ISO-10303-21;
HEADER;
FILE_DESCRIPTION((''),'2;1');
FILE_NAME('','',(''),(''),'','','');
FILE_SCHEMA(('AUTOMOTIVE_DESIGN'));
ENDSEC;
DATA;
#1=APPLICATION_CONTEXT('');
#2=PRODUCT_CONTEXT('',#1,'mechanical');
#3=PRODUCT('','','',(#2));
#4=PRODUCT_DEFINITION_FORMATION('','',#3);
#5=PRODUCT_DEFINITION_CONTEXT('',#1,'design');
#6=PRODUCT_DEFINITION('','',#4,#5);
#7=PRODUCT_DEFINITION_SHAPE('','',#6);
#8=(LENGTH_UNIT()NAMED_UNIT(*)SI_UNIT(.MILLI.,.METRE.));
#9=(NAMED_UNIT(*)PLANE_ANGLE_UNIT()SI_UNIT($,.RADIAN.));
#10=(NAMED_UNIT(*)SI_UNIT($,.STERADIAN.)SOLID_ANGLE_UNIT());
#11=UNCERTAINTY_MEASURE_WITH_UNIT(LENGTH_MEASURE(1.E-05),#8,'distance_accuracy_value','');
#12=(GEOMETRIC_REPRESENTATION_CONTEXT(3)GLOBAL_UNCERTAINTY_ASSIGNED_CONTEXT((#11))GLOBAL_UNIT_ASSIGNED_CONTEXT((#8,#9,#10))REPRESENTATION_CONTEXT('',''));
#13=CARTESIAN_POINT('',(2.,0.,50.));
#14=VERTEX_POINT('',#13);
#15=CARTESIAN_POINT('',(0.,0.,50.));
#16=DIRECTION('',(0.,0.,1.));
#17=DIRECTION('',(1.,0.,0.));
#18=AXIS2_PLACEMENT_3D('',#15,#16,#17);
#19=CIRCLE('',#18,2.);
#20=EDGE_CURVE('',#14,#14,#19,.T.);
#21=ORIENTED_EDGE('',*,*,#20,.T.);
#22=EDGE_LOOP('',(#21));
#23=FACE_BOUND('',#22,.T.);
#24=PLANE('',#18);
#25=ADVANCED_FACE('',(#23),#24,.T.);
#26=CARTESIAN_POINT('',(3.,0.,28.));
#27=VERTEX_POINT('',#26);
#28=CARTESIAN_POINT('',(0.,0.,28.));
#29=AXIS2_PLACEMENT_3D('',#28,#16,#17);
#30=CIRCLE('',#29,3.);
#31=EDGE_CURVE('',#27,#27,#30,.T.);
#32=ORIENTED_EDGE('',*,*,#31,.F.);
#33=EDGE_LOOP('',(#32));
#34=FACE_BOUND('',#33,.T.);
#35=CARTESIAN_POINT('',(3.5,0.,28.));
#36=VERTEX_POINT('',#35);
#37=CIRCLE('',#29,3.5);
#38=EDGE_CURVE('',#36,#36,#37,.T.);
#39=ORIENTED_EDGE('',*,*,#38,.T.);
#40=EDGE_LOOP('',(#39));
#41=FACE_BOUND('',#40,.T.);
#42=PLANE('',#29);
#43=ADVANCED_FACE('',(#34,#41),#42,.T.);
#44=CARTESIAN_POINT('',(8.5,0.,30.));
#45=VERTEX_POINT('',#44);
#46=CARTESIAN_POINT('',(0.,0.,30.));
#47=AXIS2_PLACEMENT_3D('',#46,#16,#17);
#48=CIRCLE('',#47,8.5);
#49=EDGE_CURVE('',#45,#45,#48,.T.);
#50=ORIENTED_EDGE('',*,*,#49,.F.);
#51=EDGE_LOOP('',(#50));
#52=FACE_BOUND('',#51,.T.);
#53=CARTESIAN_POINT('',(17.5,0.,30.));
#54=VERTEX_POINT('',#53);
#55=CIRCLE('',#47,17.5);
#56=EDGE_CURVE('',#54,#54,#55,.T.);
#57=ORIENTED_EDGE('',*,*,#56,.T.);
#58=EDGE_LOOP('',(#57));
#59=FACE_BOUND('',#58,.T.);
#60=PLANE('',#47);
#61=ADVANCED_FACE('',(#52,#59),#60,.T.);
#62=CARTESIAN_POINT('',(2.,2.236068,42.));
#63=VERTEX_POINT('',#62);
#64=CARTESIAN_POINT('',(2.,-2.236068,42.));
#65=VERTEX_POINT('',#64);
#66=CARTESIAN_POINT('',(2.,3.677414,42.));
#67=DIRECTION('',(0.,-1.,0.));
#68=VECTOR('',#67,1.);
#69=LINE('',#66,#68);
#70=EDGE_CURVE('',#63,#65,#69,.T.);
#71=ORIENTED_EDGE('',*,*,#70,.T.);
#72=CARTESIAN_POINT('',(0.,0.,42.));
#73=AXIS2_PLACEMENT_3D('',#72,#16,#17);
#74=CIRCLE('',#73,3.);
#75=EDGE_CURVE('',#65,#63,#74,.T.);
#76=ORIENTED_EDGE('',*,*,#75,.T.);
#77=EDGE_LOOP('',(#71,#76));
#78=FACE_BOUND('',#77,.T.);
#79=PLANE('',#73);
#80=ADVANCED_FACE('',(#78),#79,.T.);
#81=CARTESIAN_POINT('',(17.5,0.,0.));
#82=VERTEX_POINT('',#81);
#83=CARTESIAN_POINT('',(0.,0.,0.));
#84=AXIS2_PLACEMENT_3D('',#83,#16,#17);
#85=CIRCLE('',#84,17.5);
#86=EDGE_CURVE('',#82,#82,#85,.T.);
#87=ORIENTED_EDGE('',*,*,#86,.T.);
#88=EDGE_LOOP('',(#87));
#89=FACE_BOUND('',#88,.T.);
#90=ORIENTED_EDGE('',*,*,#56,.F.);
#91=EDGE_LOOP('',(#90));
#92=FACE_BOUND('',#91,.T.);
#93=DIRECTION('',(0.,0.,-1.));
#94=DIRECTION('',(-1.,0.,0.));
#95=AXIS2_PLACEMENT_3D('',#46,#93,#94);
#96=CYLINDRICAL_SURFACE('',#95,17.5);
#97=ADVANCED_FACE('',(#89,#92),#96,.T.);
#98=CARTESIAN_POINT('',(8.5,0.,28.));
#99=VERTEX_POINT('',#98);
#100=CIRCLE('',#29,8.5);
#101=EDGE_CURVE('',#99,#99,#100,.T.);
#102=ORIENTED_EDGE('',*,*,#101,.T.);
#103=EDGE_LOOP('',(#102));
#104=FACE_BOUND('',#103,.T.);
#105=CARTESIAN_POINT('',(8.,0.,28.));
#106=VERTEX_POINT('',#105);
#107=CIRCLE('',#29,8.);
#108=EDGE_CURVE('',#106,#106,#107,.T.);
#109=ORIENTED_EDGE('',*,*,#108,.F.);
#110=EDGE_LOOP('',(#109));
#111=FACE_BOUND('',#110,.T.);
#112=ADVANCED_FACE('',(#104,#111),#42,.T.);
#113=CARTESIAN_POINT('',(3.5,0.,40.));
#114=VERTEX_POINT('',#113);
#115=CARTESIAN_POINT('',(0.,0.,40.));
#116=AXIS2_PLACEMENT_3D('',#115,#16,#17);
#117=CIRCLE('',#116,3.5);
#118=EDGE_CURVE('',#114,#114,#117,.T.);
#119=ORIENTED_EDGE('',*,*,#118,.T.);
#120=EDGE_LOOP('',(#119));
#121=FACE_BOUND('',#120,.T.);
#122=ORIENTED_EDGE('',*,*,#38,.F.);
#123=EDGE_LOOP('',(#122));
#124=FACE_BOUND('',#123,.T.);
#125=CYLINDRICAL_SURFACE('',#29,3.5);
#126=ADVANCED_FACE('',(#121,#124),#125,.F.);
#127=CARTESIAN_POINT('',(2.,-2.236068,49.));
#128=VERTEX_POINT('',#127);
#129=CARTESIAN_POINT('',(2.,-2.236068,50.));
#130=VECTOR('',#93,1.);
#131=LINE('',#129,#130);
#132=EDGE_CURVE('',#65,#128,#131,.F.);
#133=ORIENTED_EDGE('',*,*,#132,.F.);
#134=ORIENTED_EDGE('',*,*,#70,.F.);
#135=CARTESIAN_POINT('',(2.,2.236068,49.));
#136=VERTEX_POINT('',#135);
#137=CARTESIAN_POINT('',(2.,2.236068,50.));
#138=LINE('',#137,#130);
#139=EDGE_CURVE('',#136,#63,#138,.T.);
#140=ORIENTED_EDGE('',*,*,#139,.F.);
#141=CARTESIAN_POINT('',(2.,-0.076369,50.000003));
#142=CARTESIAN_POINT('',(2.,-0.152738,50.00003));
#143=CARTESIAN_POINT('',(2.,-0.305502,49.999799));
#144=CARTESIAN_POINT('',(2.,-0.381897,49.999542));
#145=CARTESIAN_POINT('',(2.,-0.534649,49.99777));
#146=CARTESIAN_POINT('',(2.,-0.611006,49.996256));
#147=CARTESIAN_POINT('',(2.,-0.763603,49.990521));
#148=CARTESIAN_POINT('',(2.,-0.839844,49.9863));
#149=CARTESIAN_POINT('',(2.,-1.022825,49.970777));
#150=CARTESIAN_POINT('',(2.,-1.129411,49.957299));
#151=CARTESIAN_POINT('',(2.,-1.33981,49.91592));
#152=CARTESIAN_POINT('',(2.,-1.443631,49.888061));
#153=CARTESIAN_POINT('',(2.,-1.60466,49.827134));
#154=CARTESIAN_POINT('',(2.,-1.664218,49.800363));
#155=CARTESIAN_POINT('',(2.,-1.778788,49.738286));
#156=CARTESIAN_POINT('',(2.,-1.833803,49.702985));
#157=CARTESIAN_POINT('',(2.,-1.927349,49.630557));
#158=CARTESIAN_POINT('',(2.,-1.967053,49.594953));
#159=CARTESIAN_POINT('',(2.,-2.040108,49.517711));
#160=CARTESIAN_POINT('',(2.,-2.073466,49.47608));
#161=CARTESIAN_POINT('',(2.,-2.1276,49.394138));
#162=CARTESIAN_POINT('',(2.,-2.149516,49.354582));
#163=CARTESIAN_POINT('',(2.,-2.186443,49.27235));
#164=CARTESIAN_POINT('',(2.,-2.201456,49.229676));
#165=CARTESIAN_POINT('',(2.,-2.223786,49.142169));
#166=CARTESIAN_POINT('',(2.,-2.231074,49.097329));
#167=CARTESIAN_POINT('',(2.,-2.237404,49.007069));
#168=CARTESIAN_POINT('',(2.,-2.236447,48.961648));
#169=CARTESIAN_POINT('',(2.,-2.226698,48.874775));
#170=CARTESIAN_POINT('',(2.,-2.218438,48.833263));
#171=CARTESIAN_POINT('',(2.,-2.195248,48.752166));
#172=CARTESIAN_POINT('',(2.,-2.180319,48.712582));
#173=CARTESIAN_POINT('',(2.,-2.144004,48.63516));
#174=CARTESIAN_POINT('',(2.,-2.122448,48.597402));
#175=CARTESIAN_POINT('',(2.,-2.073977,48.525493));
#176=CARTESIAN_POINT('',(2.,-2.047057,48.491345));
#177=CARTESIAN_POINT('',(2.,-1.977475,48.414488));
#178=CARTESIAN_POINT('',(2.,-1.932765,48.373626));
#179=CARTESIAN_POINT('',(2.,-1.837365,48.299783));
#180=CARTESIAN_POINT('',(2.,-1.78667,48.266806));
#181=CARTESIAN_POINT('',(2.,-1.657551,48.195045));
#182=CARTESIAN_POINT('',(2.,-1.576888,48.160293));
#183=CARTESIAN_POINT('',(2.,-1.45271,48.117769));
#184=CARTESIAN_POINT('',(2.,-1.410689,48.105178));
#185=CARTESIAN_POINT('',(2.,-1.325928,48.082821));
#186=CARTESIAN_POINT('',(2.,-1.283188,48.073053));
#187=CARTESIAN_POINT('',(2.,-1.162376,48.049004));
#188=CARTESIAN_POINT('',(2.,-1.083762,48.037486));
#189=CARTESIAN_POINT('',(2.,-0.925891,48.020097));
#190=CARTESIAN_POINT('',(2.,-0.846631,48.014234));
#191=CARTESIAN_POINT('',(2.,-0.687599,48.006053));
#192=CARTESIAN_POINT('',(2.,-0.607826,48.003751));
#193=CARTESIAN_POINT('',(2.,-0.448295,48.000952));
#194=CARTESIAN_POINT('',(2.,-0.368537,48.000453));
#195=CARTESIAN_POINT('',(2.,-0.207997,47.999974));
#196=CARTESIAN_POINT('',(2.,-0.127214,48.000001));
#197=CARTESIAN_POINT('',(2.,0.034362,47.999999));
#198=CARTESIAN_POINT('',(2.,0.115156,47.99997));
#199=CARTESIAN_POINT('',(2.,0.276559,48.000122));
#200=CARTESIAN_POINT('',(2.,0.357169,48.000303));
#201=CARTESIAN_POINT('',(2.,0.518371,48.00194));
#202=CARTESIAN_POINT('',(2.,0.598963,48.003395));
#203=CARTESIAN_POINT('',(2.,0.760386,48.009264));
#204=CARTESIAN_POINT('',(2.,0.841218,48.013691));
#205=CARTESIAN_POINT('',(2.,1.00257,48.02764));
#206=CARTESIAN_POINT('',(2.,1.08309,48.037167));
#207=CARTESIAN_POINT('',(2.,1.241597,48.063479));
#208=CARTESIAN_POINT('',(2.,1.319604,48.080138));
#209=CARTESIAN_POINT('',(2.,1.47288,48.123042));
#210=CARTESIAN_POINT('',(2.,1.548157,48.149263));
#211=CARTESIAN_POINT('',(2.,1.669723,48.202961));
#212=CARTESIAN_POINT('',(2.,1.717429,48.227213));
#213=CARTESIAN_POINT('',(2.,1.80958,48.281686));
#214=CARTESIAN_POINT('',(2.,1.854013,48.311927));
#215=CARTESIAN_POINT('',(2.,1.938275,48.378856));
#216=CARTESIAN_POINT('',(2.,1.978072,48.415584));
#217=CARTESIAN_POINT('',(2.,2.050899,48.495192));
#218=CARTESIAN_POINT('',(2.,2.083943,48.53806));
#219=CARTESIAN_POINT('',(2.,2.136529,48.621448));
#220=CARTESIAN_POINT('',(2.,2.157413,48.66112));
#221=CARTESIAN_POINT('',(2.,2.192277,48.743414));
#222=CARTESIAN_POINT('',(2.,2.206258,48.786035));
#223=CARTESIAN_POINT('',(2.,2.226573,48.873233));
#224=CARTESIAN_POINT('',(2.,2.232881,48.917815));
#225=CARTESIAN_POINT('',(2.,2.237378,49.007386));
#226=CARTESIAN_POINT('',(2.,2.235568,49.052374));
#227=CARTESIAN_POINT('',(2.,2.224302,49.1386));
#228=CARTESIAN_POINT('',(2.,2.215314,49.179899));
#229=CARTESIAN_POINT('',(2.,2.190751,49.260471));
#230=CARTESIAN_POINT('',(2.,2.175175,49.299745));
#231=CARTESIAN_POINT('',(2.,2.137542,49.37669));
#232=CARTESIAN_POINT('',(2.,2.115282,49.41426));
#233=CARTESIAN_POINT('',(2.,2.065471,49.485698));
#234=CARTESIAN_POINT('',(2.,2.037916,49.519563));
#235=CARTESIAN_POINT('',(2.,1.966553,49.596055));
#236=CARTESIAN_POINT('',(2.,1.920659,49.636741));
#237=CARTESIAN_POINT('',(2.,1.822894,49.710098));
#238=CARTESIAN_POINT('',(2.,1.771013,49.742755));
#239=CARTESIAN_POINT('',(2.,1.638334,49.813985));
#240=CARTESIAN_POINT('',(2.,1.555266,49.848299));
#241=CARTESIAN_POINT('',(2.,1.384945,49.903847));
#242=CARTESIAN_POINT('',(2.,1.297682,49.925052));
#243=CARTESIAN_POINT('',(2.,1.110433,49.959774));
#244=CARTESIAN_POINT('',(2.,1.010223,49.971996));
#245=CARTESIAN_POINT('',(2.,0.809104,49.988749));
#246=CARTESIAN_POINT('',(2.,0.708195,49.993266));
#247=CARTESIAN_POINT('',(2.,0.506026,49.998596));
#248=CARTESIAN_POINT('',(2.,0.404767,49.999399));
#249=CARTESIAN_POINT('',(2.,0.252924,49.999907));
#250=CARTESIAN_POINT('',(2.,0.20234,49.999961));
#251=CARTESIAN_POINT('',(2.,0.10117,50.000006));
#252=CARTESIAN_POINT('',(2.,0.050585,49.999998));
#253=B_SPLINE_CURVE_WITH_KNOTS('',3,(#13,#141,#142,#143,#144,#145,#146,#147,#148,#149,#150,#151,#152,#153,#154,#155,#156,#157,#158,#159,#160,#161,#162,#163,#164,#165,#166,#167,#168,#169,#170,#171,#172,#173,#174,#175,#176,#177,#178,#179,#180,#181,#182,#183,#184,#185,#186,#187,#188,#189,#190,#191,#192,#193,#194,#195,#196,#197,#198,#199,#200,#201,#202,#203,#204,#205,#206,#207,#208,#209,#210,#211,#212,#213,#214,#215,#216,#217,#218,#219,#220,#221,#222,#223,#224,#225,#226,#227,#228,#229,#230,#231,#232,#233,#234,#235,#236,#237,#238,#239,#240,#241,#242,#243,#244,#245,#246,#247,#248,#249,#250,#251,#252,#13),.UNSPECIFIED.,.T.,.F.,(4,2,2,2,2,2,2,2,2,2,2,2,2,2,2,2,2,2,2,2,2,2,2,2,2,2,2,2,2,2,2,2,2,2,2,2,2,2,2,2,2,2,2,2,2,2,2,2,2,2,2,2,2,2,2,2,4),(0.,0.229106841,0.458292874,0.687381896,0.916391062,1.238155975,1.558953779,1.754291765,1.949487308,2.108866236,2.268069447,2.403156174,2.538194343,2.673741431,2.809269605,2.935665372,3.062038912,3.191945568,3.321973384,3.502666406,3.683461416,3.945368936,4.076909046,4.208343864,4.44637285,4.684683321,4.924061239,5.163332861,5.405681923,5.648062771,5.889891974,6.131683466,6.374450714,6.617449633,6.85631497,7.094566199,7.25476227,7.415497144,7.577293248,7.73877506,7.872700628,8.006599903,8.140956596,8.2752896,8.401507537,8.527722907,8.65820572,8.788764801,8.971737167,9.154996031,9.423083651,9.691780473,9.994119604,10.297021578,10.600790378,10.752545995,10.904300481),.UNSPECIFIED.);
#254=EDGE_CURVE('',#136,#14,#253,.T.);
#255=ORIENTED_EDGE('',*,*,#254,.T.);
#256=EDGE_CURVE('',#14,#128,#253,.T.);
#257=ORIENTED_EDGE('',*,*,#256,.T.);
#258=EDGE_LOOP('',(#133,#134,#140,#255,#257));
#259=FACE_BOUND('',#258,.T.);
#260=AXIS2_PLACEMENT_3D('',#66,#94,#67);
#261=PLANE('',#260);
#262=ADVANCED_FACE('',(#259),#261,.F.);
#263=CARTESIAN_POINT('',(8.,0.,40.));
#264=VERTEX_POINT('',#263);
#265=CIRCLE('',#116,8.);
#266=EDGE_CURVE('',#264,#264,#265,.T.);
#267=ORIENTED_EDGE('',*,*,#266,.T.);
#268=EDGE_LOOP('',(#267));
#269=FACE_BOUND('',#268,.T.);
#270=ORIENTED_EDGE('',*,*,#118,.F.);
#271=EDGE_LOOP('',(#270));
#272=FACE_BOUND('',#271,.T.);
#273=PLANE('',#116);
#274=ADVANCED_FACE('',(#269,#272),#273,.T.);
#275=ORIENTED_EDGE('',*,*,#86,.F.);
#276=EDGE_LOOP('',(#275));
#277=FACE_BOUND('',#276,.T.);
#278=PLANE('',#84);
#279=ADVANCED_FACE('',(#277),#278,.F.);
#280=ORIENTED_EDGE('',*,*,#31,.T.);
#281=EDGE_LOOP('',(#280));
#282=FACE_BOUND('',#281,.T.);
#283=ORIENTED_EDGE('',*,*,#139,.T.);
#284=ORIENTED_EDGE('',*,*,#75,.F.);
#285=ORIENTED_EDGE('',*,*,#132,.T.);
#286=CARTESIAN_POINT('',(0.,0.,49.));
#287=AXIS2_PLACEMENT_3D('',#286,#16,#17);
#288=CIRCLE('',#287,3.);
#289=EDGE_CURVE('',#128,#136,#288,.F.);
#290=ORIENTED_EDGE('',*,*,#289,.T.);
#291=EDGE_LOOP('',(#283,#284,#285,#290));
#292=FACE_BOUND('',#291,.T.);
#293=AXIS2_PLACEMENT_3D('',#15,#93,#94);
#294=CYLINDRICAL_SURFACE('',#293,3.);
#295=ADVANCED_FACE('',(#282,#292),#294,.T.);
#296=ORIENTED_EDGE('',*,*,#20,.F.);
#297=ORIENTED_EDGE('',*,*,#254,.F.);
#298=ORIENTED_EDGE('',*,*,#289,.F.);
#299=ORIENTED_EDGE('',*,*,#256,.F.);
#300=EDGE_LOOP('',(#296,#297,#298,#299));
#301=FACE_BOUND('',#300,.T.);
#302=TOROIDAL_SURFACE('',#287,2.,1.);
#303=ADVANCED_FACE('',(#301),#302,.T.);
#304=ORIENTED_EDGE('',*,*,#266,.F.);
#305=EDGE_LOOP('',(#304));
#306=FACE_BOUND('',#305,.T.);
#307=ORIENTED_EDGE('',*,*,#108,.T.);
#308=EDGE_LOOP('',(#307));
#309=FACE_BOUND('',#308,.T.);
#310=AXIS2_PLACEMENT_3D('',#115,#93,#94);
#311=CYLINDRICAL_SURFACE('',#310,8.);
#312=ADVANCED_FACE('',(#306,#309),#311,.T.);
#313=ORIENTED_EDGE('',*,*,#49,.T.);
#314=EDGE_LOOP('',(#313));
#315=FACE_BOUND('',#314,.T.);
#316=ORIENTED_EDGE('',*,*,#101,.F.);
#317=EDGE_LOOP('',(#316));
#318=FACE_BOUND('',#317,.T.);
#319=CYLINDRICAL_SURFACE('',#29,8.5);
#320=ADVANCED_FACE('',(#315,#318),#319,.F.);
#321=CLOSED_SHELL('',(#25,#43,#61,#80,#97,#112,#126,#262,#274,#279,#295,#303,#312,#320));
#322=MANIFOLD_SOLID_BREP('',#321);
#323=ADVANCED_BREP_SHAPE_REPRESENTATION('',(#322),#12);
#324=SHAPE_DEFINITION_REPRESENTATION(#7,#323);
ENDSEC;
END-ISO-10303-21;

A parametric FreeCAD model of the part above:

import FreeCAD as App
import Part
import Sketcher

V = App.Vector
Q = App.Units.Quantity


def edges_at(feature, points):
    """Names of the edges that pass closest to the given points."""
    edges = feature.Shape.Edges
    near = lambda p: min(range(len(edges)), key=lambda i: edges[i].distToShape(Part.Vertex(*p))[0])
    return sorted({f"Edge{near(p) + 1}" for p in points})

doc = App.newDocument("Part")
body = doc.addObject("PartDesign::Body", "Body")

sketch1 = body.newObject("Sketcher::SketchObject", "Sketch")
sketch1.AttachmentSupport = (doc.getObject("XY_Plane"), [""])
sketch1.MapMode = "FlatFace"
sketch1.addGeometry(Part.Circle(V(0, 0, 0), V(0, 0, 1), 17.5), False)
sketch1.addConstraint(Sketcher.Constraint("Coincident", 0, 3, -1, 1))
sketch1.addConstraint(Sketcher.Constraint("Diameter", 0, Q("35 mm")))
pad1 = body.newObject("PartDesign::Pad", "Pad")
pad1.Profile = sketch1
pad1.Length = 30

sketch2 = body.newObject("Sketcher::SketchObject", "Sketch001")
sketch2.AttachmentSupport = (doc.getObject("XY_Plane"), [""])
sketch2.MapMode = "FlatFace"
sketch2.AttachmentOffset = App.Placement(V(0, 0, 30), App.Rotation())
sketch2.addGeometry(Part.Circle(V(0, 0, 0), V(0, 0, 1), 8), False)
sketch2.addConstraint(Sketcher.Constraint("Coincident", 0, 3, -1, 1))
sketch2.addConstraint(Sketcher.Constraint("Diameter", 0, Q("16 mm")))
pad2 = body.newObject("PartDesign::Pad", "Pad001")
pad2.Profile = sketch2
pad2.Length = 10

sketch3 = body.newObject("Sketcher::SketchObject", "Sketch002")
sketch3.AttachmentSupport = (doc.getObject("XY_Plane"), [""])
sketch3.MapMode = "FlatFace"
sketch3.AttachmentOffset = App.Placement(V(0, 0, 28), App.Rotation())
sketch3.addGeometry(Part.Circle(V(0, 0, 0), V(0, 0, 1), 8.5), False)
sketch3.addGeometry(Part.Circle(V(0, 0, 0), V(0, 0, 1), 8), False)
sketch3.addConstraint(Sketcher.Constraint("Coincident", 0, 3, -1, 1))
sketch3.addConstraint(Sketcher.Constraint("Coincident", 1, 3, -1, 1))
sketch3.addConstraint(Sketcher.Constraint("Diameter", 0, Q("17 mm")))
sketch3.addConstraint(Sketcher.Constraint("Diameter", 1, Q("16 mm")))
pocket1 = body.newObject("PartDesign::Pocket", "Pocket")
pocket1.Profile = sketch3
pocket1.Length = 2
pocket1.Reversed = True

sketch4 = body.newObject("Sketcher::SketchObject", "Sketch003")
sketch4.AttachmentSupport = (doc.getObject("XY_Plane"), [""])
sketch4.MapMode = "FlatFace"
sketch4.AttachmentOffset = App.Placement(V(0, 0, 40), App.Rotation())
sketch4.addGeometry(Part.Circle(V(0, 0, 0), V(0, 0, 1), 3), False)
sketch4.addConstraint(Sketcher.Constraint("Coincident", 0, 3, -1, 1))
sketch4.addConstraint(Sketcher.Constraint("Diameter", 0, Q("6 mm")))
pad3 = body.newObject("PartDesign::Pad", "Pad002")
pad3.Profile = sketch4
pad3.Length = 10

sketch5 = body.newObject("Sketcher::SketchObject", "Sketch004")
sketch5.AttachmentSupport = (doc.getObject("XY_Plane"), [""])
sketch5.MapMode = "FlatFace"
sketch5.AttachmentOffset = App.Placement(V(0, 0, 28), App.Rotation())
sketch5.addGeometry(Part.Circle(V(0, 0, 0), V(0, 0, 1), 3.5), False)
sketch5.addGeometry(Part.Circle(V(0, 0, 0), V(0, 0, 1), 3), False)
sketch5.addConstraint(Sketcher.Constraint("Coincident", 0, 3, -1, 1))
sketch5.addConstraint(Sketcher.Constraint("Coincident", 1, 3, -1, 1))
sketch5.addConstraint(Sketcher.Constraint("Diameter", 0, Q("7 mm")))
sketch5.addConstraint(Sketcher.Constraint("Diameter", 1, Q("6 mm")))
pocket2 = body.newObject("PartDesign::Pocket", "Pocket001")
pocket2.Profile = sketch5
pocket2.Length = 12
pocket2.Reversed = True
doc.recompute()

fillet = body.newObject("PartDesign::Fillet", "Fillet")
fillet.Base = (pocket2, edges_at(pocket2, [(-3, 0, 50)]))
fillet.Radius = 1

sketch6 = body.newObject("Sketcher::SketchObject", "Sketch005")
sketch6.AttachmentSupport = (doc.getObject("XY_Plane"), [""])
sketch6.MapMode = "FlatFace"
sketch6.AttachmentOffset = App.Placement(V(0, 0, 50), App.Rotation())
sketch6.addGeometry(Part.LineSegment(V(2, 3.677414, 0), V(2, -5.685565, 0)), False)
sketch6.addGeometry(Part.LineSegment(V(2, -5.685565, 0), V(4.555325, -5.685565, 0)), False)
sketch6.addGeometry(Part.LineSegment(V(4.555325, -5.685565, 0), V(4.555325, 3.677414, 0)), False)
sketch6.addGeometry(Part.LineSegment(V(4.555325, 3.677414, 0), V(2, 3.677414, 0)), False)
sketch6.addConstraint(Sketcher.Constraint("Coincident", 0, 2, 1, 1))
sketch6.addConstraint(Sketcher.Constraint("Coincident", 1, 2, 2, 1))
sketch6.addConstraint(Sketcher.Constraint("Coincident", 2, 2, 3, 1))
sketch6.addConstraint(Sketcher.Constraint("Coincident", 3, 2, 0, 1))
sketch6.addConstraint(Sketcher.Constraint("Vertical", 0))
sketch6.addConstraint(Sketcher.Constraint("Horizontal", 1))
sketch6.addConstraint(Sketcher.Constraint("Vertical", 2))
sketch6.addConstraint(Sketcher.Constraint("Horizontal", 3))
sketch6.addConstraint(Sketcher.Constraint("DistanceX", -1, 1, 0, 2, Q("2 mm")))
sketch6.addConstraint(Sketcher.Constraint("DistanceY", 0, 2, 0, 1, Q("9.362979 mm")))
sketch6.addConstraint(Sketcher.Constraint("DistanceX", 1, 1, 1, 2, Q("2.555325 mm")))
sketch6.addConstraint(Sketcher.Constraint("DistanceY", 0, 2, -1, 1, Q("5.685565 mm")))
pocket3 = body.newObject("PartDesign::Pocket", "Pocket002")
pocket3.Profile = sketch6
pocket3.Length = 8

doc.recompute()
